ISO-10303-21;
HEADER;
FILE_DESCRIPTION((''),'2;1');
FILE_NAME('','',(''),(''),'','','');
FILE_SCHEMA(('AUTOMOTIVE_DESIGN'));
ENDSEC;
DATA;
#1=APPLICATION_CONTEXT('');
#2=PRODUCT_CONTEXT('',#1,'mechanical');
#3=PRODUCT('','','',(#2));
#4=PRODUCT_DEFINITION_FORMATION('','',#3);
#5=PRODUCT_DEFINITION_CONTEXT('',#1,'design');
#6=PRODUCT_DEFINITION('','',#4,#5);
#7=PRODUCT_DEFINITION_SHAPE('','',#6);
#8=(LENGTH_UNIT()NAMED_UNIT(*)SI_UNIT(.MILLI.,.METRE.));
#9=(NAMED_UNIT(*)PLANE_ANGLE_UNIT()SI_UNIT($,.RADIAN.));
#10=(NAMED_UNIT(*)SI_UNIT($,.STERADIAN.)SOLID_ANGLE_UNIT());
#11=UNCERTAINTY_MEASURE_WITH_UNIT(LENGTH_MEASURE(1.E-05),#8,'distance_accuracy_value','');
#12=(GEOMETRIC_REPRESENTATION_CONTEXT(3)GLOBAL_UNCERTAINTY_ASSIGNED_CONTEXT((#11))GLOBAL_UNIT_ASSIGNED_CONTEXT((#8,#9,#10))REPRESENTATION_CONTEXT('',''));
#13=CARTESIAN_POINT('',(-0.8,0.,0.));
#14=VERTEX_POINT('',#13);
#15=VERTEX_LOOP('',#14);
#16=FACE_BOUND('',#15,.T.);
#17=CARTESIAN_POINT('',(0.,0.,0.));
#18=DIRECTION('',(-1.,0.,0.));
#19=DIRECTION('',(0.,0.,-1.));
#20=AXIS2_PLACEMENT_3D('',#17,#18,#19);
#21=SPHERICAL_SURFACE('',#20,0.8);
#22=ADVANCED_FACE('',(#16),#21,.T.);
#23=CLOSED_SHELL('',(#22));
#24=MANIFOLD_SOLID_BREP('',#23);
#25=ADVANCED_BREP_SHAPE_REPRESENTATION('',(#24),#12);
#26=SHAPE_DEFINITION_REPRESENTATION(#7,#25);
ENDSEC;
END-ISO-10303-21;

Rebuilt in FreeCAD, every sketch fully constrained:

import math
import FreeCAD as App
import Part
import Sketcher

V = App.Vector
Q = App.Units.Quantity

doc = App.newDocument("Part")
body = doc.addObject("PartDesign::Body", "Body")

# Sketch on XZ plane
sketch1 = doc.addObject("Sketcher::SketchObject", "Sketch")
body.addObject(sketch1)
sketch1.AttachmentSupport = (doc.XZ_Plane, [""])
sketch1.MapMode = "FlatFace"
sketch1.addGeometry([
    Part.LineSegment(V(-0.8, 0, 0), V(0.8, 0, 0)),
    Part.ArcOfCircle(Part.Circle(V(0, 0, 0), V(0, 0, 1), 0.8), math.radians(180), math.radians(360)),
], False)
sketch1.addConstraint([
    Sketcher.Constraint("Coincident", 0, 1, 1, 1),
    Sketcher.Constraint("Coincident", 1, 2, 0, 2),
    Sketcher.Constraint("Horizontal", 0),
    Sketcher.Constraint("Coincident", 1, 3, -1, 1),
    Sketcher.Constraint("PointOnObject", 0, 1, -1),
    Sketcher.Constraint("Radius", 1, Q("0.8 mm")),
])
revolution = doc.addObject("PartDesign::Revolution", "Revolution")
body.addObject(revolution)
revolution.Profile = sketch1
revolution.ReferenceAxis = (sketch1, ["H_Axis"])
revolution.Angle = 360

doc.recompute()
